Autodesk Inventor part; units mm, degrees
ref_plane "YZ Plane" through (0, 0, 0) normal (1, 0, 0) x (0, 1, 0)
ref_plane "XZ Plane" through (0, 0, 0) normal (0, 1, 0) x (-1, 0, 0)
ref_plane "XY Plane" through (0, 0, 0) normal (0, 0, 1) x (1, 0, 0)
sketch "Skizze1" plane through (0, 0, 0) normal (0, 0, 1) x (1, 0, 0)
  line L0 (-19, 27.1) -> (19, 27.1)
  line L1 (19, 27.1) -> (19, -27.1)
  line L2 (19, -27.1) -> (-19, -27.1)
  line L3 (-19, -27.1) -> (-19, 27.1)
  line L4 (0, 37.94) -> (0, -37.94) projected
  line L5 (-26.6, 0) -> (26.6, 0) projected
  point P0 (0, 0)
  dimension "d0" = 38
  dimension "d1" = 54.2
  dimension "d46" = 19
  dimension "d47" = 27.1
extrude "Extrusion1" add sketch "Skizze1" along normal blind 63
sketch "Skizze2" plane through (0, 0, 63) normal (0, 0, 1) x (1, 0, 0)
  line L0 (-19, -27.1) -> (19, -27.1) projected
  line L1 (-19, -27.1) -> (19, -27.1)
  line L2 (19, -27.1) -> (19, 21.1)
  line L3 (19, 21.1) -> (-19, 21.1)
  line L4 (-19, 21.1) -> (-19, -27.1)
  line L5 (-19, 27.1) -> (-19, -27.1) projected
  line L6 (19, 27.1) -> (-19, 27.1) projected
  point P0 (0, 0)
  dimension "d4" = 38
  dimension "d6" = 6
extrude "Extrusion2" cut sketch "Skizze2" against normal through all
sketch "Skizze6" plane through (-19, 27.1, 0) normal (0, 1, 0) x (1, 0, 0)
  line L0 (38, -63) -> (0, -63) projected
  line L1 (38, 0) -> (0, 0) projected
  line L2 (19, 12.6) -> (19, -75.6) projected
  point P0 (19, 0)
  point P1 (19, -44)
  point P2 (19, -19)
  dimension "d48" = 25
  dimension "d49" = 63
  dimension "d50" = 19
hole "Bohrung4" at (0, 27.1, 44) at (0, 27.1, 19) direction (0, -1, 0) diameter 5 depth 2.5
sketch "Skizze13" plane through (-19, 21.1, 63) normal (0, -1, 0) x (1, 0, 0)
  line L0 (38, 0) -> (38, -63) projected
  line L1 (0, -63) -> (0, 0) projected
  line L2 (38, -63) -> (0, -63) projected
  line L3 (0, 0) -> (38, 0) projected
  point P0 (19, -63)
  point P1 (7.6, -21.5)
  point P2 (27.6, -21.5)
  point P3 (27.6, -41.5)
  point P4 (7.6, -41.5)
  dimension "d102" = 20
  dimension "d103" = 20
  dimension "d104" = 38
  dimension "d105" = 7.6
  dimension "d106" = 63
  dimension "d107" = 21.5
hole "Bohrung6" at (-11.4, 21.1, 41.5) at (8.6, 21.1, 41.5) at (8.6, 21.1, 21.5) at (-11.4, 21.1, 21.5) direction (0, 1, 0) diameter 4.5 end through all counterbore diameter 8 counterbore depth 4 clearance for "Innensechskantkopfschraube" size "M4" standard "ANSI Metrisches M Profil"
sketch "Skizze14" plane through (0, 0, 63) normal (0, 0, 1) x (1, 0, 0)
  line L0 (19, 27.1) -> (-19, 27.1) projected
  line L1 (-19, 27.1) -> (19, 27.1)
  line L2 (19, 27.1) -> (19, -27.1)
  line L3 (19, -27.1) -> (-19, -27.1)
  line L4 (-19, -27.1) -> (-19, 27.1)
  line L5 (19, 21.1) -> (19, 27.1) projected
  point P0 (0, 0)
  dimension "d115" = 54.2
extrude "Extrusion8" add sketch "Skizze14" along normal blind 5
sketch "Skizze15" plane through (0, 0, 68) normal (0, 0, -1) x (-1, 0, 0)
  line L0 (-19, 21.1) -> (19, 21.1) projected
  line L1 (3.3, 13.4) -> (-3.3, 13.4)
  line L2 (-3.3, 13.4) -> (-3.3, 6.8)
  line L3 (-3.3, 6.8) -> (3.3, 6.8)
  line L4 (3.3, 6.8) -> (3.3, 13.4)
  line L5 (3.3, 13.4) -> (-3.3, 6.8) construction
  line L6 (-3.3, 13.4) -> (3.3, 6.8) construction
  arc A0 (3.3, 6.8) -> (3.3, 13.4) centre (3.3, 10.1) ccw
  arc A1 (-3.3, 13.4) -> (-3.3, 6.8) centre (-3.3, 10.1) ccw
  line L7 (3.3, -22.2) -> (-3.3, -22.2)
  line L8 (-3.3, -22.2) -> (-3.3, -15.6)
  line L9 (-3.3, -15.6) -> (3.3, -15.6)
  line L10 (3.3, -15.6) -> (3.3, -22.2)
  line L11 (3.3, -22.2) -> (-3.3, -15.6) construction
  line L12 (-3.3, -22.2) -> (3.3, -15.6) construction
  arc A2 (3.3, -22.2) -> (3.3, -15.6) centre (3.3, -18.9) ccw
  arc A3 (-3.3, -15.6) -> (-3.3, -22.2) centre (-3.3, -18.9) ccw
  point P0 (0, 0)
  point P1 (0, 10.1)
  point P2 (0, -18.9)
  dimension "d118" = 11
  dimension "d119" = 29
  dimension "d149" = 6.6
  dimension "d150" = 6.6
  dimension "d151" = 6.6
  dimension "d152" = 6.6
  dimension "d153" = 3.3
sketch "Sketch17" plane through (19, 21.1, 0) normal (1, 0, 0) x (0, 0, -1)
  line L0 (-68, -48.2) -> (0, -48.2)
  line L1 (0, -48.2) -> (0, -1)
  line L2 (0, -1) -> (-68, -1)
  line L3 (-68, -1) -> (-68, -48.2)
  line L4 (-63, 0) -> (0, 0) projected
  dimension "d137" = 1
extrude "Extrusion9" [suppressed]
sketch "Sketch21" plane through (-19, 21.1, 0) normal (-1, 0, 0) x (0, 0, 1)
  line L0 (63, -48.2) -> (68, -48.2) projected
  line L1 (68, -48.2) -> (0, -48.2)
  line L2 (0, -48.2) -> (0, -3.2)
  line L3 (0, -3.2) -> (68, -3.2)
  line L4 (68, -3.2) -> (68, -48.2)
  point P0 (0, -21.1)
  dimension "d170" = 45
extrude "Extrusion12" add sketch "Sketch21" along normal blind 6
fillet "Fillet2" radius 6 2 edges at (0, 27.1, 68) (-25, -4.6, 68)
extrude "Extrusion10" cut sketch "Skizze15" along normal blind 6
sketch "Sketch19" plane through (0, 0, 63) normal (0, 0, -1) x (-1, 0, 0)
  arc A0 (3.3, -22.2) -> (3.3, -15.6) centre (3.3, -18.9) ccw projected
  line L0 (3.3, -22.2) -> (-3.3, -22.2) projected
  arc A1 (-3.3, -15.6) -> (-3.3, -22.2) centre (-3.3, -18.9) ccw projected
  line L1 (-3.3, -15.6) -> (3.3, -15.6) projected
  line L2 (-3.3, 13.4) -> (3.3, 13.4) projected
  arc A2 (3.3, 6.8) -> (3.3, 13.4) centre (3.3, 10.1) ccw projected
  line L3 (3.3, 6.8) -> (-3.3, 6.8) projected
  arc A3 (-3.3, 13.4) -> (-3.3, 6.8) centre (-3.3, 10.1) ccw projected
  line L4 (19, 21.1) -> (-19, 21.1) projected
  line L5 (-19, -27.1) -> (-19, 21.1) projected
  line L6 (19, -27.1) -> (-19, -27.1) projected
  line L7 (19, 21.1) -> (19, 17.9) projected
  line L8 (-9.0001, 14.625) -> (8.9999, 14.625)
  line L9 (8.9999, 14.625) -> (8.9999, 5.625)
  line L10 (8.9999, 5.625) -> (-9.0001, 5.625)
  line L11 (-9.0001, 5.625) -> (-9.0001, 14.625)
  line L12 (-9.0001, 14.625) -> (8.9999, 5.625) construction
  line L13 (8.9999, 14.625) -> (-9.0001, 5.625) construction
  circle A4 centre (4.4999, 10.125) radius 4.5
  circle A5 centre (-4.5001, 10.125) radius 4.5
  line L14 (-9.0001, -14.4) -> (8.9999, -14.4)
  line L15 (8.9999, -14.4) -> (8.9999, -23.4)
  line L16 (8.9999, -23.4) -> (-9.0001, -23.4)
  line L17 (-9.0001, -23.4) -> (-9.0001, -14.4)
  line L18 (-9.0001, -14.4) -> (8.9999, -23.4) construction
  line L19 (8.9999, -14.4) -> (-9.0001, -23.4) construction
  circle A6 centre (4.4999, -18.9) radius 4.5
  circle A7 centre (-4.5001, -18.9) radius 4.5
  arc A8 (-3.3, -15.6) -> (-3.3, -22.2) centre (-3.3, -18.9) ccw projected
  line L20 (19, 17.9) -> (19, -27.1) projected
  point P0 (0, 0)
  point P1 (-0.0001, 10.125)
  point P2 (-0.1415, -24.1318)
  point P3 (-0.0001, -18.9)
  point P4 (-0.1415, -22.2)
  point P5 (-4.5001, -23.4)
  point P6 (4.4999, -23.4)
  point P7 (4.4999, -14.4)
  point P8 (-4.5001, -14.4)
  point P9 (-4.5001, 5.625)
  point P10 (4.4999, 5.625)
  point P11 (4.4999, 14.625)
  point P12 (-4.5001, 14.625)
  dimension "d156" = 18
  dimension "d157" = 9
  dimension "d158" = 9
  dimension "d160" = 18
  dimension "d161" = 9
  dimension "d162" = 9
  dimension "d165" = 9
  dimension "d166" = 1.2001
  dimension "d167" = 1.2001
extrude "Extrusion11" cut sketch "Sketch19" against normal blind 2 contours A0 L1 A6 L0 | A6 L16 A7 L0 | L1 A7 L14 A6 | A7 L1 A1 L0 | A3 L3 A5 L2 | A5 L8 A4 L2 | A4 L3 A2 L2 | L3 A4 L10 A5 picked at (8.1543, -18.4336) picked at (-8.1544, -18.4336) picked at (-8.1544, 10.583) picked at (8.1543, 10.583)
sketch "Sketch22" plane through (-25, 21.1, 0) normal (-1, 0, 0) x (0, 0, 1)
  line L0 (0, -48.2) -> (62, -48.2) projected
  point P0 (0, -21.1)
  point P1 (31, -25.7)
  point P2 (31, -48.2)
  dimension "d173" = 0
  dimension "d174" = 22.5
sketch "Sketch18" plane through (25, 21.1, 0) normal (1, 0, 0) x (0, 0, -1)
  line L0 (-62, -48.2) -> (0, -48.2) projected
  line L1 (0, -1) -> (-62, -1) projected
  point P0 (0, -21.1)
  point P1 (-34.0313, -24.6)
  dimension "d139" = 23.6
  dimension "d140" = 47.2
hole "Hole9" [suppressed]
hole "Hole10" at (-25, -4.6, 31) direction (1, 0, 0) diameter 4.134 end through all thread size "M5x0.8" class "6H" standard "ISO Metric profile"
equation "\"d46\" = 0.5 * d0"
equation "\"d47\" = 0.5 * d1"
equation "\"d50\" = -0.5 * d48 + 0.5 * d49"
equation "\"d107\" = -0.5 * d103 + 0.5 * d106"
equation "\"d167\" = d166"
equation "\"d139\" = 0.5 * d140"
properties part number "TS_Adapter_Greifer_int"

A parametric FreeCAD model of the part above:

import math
import FreeCAD as App
import Part
import Sketcher
Q = App.Units.Quantity


def edges_at(feature, points):
    """Names of the edges that pass closest to the given points."""
    edges = feature.Shape.Edges
    near = lambda p: min(range(len(edges)), key=lambda i: edges[i].distToShape(Part.Vertex(*p))[0])
    return sorted({f"Edge{near(p) + 1}" for p in points})

doc = App.newDocument("Part")
body = doc.addObject("PartDesign::Body", "Body")

sketch1 = body.newObject("Sketcher::SketchObject", "Sketch")
sketch1.AttachmentSupport = (doc.getObject("XY_Plane"), [""])
sketch1.MapMode = "FlatFace"
sketch1.addGeometry(Part.LineSegment(App.Vector(-19, 27, 0), App.Vector(-19, -27, 0)), False)
sketch1.addGeometry(Part.LineSegment(App.Vector(-19, -27, 0), App.Vector(19, -27, 0)), False)
sketch1.addGeometry(Part.LineSegment(App.Vector(19, -27, 0), App.Vector(19, 27, 0)), False)
sketch1.addGeometry(Part.LineSegment(App.Vector(19, 27, 0), App.Vector(-19, 27, 0)), False)
sketch1.addConstraint(Sketcher.Constraint("Coincident", 0, 2, 1, 1))
sketch1.addConstraint(Sketcher.Constraint("Coincident", 1, 2, 2, 1))
sketch1.addConstraint(Sketcher.Constraint("Coincident", 2, 2, 3, 1))
sketch1.addConstraint(Sketcher.Constraint("Coincident", 3, 2, 0, 1))
sketch1.addConstraint(Sketcher.Constraint("Vertical", 0))
sketch1.addConstraint(Sketcher.Constraint("Horizontal", 1))
sketch1.addConstraint(Sketcher.Constraint("Vertical", 2))
sketch1.addConstraint(Sketcher.Constraint("Horizontal", 3))
sketch1.addConstraint(Sketcher.Constraint("Symmetric", 0, 2, 2, 2, -1, 1))
sketch1.addConstraint(Sketcher.Constraint("DistanceX", 1, 1, 1, 2, Q("38 mm")))
sketch1.addConstraint(Sketcher.Constraint("DistanceY", 0, 2, 0, 1, Q("54.2 mm")))
pad1 = body.newObject("PartDesign::Pad", "Pad")
pad1.Profile = sketch1
pad1.Length = 63

sketch2 = body.newObject("Sketcher::SketchObject", "Sketch001")
sketch2.AttachmentSupport = (doc.getObject("XY_Plane"), [""])
sketch2.MapMode = "FlatFace"
sketch2.AttachmentOffset = App.Placement(App.Vector(0, 0, 63), App.Rotation())
sketch2.addGeometry(Part.LineSegment(App.Vector(-19, 21, 0), App.Vector(-19, -27, 0)), False)
sketch2.addGeometry(Part.LineSegment(App.Vector(-19, -27, 0), App.Vector(19, -27, 0)), False)
sketch2.addGeometry(Part.LineSegment(App.Vector(19, -27, 0), App.Vector(19, 21, 0)), False)
sketch2.addGeometry(Part.LineSegment(App.Vector(19, 21, 0), App.Vector(-19, 21, 0)), False)
sketch2.addConstraint(Sketcher.Constraint("Coincident", 0, 2, 1, 1))
sketch2.addConstraint(Sketcher.Constraint("Coincident", 1, 2, 2, 1))
sketch2.addConstraint(Sketcher.Constraint("Coincident", 2, 2, 3, 1))
sketch2.addConstraint(Sketcher.Constraint("Coincident", 3, 2, 0, 1))
sketch2.addConstraint(Sketcher.Constraint("Vertical", 0))
sketch2.addConstraint(Sketcher.Constraint("Horizontal", 1))
sketch2.addConstraint(Sketcher.Constraint("Vertical", 2))
sketch2.addConstraint(Sketcher.Constraint("Horizontal", 3))
sketch2.addConstraint(Sketcher.Constraint("DistanceX", 1, 1, 1, 2, Q("38 mm")))
sketch2.addConstraint(Sketcher.Constraint("DistanceY", 0, 2, 0, 1, Q("48.2 mm")))
sketch2.addConstraint(Sketcher.Constraint("DistanceX", 0, 2, -1, 1, Q("19 mm")))
sketch2.addConstraint(Sketcher.Constraint("DistanceY", 0, 2, -1, 1, Q("27.1 mm")))
pocket1 = body.newObject("PartDesign::Pocket", "Pocket")
pocket1.Profile = sketch2
pocket1.Type = "ThroughAll"

sketch3 = body.newObject("Sketcher::SketchObject", "Sketch002")
sketch3.AttachmentSupport = (doc.getObject("XZ_Plane"), [""])
sketch3.MapMode = "FlatFace"
sketch3.AttachmentOffset = App.Placement(App.Vector(0, 0, -27.1), App.Rotation())
sketch3.addGeometry(Part.Circle(App.Vector(0, 44, 0), App.Vector(0, 0, 1), 2.5), False)
sketch3.addGeometry(Part.Circle(App.Vector(0, 19, 0), App.Vector(0, 0, 1), 2.5), False)
sketch3.addConstraint(Sketcher.Constraint("Equal", 0, 1))
sketch3.addConstraint(Sketcher.Constraint("PointOnObject", 0, 3, -2))
sketch3.addConstraint(Sketcher.Constraint("PointOnObject", 1, 3, -2))
sketch3.addConstraint(Sketcher.Constraint("Diameter", 0, Q("5 mm")))
sketch3.addConstraint(Sketcher.Constraint("DistanceY", -1, 1, 0, 3, Q("44 mm")))
sketch3.addConstraint(Sketcher.Constraint("DistanceY", -1, 1, 1, 3, Q("19 mm")))
doc.recompute()
hole = body.newObject("PartDesign::Hole", "Hole")
hole.Profile = sketch3
hole.ThreadType = "None"
hole.Diameter = 5
hole.DepthType = "Dimension"
hole.Depth = 2.5
hole.DrillPoint = "Flat"
hole.Reversed = True

sketch4 = body.newObject("Sketcher::SketchObject", "Sketch003")
sketch4.AttachmentSupport = (doc.getObject("XZ_Plane"), [""])
sketch4.MapMode = "FlatFace"
sketch4.AttachmentOffset = App.Placement(App.Vector(0, 0, -21.1), App.Rotation())
sketch4.addGeometry(Part.Circle(App.Vector(-11.4, 41.5, 0), App.Vector(0, 0, 1), 2.2), False)
sketch4.addGeometry(Part.Circle(App.Vector(8.6, 41.5, 0), App.Vector(0, 0, 1), 2.2), False)
sketch4.addGeometry(Part.Circle(App.Vector(8.6, 21.5, 0), App.Vector(0, 0, 1), 2.2), False)
sketch4.addGeometry(Part.Circle(App.Vector(-11.4, 21.5, 0), App.Vector(0, 0, 1), 2.2), False)
sketch4.addConstraint(Sketcher.Constraint("Equal", 0, 1))
sketch4.addConstraint(Sketcher.Constraint("Equal", 1, 2))
sketch4.addConstraint(Sketcher.Constraint("Equal", 2, 3))
sketch4.addConstraint(Sketcher.Constraint("Horizontal", 0, 3, 1, 3))
sketch4.addConstraint(Sketcher.Constraint("Horizontal", 2, 3, 3, 3))
sketch4.addConstraint(Sketcher.Constraint("Vertical", 1, 3, 2, 3))
sketch4.addConstraint(Sketcher.Constraint("Vertical", 0, 3, 3, 3))
sketch4.addConstraint(Sketcher.Constraint("Diameter", 0, Q("4.5 mm")))
sketch4.addConstraint(Sketcher.Constraint("DistanceX", 0, 3, 1, 3, Q("20 mm")))
sketch4.addConstraint(Sketcher.Constraint("DistanceY", 2, 3, 1, 3, Q("20 mm")))
sketch4.addConstraint(Sketcher.Constraint("DistanceX", 0, 3, -1, 1, Q("11.4 mm")))
sketch4.addConstraint(Sketcher.Constraint("DistanceY", -1, 1, 0, 3, Q("41.5 mm")))
doc.recompute()
hole2 = body.newObject("PartDesign::Hole", "Hole001")
hole2.Profile = sketch4
hole2.ThreadType = "None"
hole2.Diameter = 4.5
hole2.DepthType = "ThroughAll"
hole2.HoleCutType = "Counterbore"
hole2.HoleCutDiameter = 8
hole2.HoleCutDepth = 4

sketch5 = body.newObject("Sketcher::SketchObject", "Sketch004")
sketch5.AttachmentSupport = (doc.getObject("XY_Plane"), [""])
sketch5.MapMode = "FlatFace"
sketch5.AttachmentOffset = App.Placement(App.Vector(0, 0, 63), App.Rotation())
sketch5.addGeometry(Part.LineSegment(App.Vector(19, -27, 0), App.Vector(19, 27, 0)), False)
sketch5.addGeometry(Part.LineSegment(App.Vector(19, 27, 0), App.Vector(-19, 27, 0)), False)
sketch5.addGeometry(Part.LineSegment(App.Vector(-19, 27, 0), App.Vector(-19, -27, 0)), False)
sketch5.addGeometry(Part.LineSegment(App.Vector(-19, -27, 0), App.Vector(19, -27, 0)), False)
sketch5.addConstraint(Sketcher.Constraint("Coincident", 0, 2, 1, 1))
sketch5.addConstraint(Sketcher.Constraint("Coincident", 1, 2, 2, 1))
sketch5.addConstraint(Sketcher.Constraint("Coincident", 2, 2, 3, 1))
sketch5.addConstraint(Sketcher.Constraint("Coincident", 3, 2, 0, 1))
sketch5.addConstraint(Sketcher.Constraint("Vertical", 0))
sketch5.addConstraint(Sketcher.Constraint("Horizontal", 1))
sketch5.addConstraint(Sketcher.Constraint("Vertical", 2))
sketch5.addConstraint(Sketcher.Constraint("Horizontal", 3))
sketch5.addConstraint(Sketcher.Constraint("Symmetric", 0, 2, 2, 2, -1, 1))
sketch5.addConstraint(Sketcher.Constraint("DistanceY", 0, 1, 0, 2, Q("54.2 mm")))
sketch5.addConstraint(Sketcher.Constraint("DistanceX", 1, 2, 1, 1, Q("38 mm")))
pad2 = body.newObject("PartDesign::Pad", "Pad001")
pad2.Profile = sketch5
pad2.Length = 5

sketch6 = body.newObject("Sketcher::SketchObject", "Sketch005")
sketch6.AttachmentSupport = (doc.getObject("YZ_Plane"), [""])
sketch6.MapMode = "FlatFace"
sketch6.AttachmentOffset = App.Placement(App.Vector(0, 0, -19), App.Rotation())
sketch6.addGeometry(Part.LineSegment(App.Vector(-27, 0, 0), App.Vector(-27, 68, 0)), False)
sketch6.addGeometry(Part.LineSegment(App.Vector(-27, 68, 0), App.Vector(18, 68, 0)), False)
sketch6.addGeometry(Part.LineSegment(App.Vector(18, 68, 0), App.Vector(18, 0, 0)), False)
sketch6.addGeometry(Part.LineSegment(App.Vector(18, 0, 0), App.Vector(-27, 0, 0)), False)
sketch6.addConstraint(Sketcher.Constraint("Coincident", 0, 2, 1, 1))
sketch6.addConstraint(Sketcher.Constraint("Coincident", 1, 2, 2, 1))
sketch6.addConstraint(Sketcher.Constraint("Coincident", 2, 2, 3, 1))
sketch6.addConstraint(Sketcher.Constraint("Coincident", 3, 2, 0, 1))
sketch6.addConstraint(Sketcher.Constraint("Vertical", 0))
sketch6.addConstraint(Sketcher.Constraint("Horizontal", 1))
sketch6.addConstraint(Sketcher.Constraint("Vertical", 2))
sketch6.addConstraint(Sketcher.Constraint("Horizontal", 3))
sketch6.addConstraint(Sketcher.Constraint("PointOnObject", 2, 2, -1))
sketch6.addConstraint(Sketcher.Constraint("DistanceX", 1, 1, 1, 2, Q("45 mm")))
sketch6.addConstraint(Sketcher.Constraint("DistanceY", 0, 1, 0, 2, Q("68 mm")))
sketch6.addConstraint(Sketcher.Constraint("DistanceX", 0, 2, -1, 1, Q("27.1 mm")))
pad3 = body.newObject("PartDesign::Pad", "Pad002")
pad3.Profile = sketch6
pad3.Length = 6
pad3.Reversed = True
doc.recompute()

fillet = body.newObject("PartDesign::Fillet", "Fillet")
fillet.Base = (pad3, edges_at(pad3, [(0, 27.1, 68), (-25, -4.6, 68)]))
fillet.Radius = 6

sketch7 = body.newObject("Sketcher::SketchObject", "Sketch006")
sketch7.AttachmentSupport = (doc.getObject("XY_Plane"), [""])
sketch7.MapMode = "FlatFace"
sketch7.AttachmentOffset = App.Placement(App.Vector(0, 0, 68), App.Rotation())
sketch7.addGeometry(Part.LineSegment(App.Vector(3.3, 6.8, 0), App.Vector(-3.3, 6.8, 0)), False)
sketch7.addGeometry(Part.ArcOfCircle(Part.Circle(App.Vector(-3.3, 10.1, 0), App.Vector(0, 0, 1), 3.3), math.radians(90), math.radians(270)), False)
sketch7.addGeometry(Part.LineSegment(App.Vector(-3.3, 13.4, 0), App.Vector(3.3, 13.4, 0)), False)
sketch7.addGeometry(Part.ArcOfCircle(Part.Circle(App.Vector(3.3, 10.1, 0), App.Vector(0, 0, 1), 3.3), math.radians(-90), math.radians(90)), False)
sketch7.addGeometry(Part.LineSegment(App.Vector(3.3, -22.2, 0), App.Vector(-3.3, -22.2, 0)), False)
sketch7.addGeometry(Part.ArcOfCircle(Part.Circle(App.Vector(-3.3, -18.9, 0), App.Vector(0, 0, 1), 3.3), math.radians(90), math.radians(270)), False)
sketch7.addGeometry(Part.LineSegment(App.Vector(-3.3, -15.6, 0), App.Vector(3.3, -15.6, 0)), False)
sketch7.addGeometry(Part.ArcOfCircle(Part.Circle(App.Vector(3.3, -18.9, 0), App.Vector(0, 0, 1), 3.3), math.radians(-90), math.radians(90)), False)
sketch7.addConstraint(Sketcher.Constraint("Tangent", 0, 2, 1, 2))
sketch7.addConstraint(Sketcher.Constraint("Tangent", 1, 1, 2, 1))
sketch7.addConstraint(Sketcher.Constraint("Tangent", 2, 2, 3, 2))
sketch7.addConstraint(Sketcher.Constraint("Tangent", 3, 1, 0, 1))
sketch7.addConstraint(Sketcher.Constraint("Tangent", 4, 2, 5, 2))
sketch7.addConstraint(Sketcher.Constraint("Tangent", 5, 1, 6, 1))
sketch7.addConstraint(Sketcher.Constraint("Tangent", 6, 2, 7, 2))
sketch7.addConstraint(Sketcher.Constraint("Tangent", 7, 1, 4, 1))
sketch7.addConstraint(Sketcher.Constraint("Horizontal", 0))
sketch7.addConstraint(Sketcher.Constraint("Horizontal", 2))
sketch7.addConstraint(Sketcher.Constraint("Horizontal", 4))
sketch7.addConstraint(Sketcher.Constraint("Horizontal", 6))
sketch7.addConstraint(Sketcher.Constraint("Equal", 3, 5))
sketch7.addConstraint(Sketcher.Constraint("Vertical", 1, 3, 5, 3))
sketch7.addConstraint(Sketcher.Constraint("Vertical", 3, 3, 7, 3))
sketch7.addConstraint(Sketcher.Constraint("Radius", 1, Q("3.3 mm")))
sketch7.addConstraint(Sketcher.Constraint("DistanceX", 0, 2, 0, 1, Q("6.6 mm")))
sketch7.addConstraint(Sketcher.Constraint("DistanceY", 5, 3, 1, 3, Q("29 mm")))
sketch7.addConstraint(Sketcher.Constraint("DistanceX", 1, 3, -1, 1, Q("3.3 mm")))
sketch7.addConstraint(Sketcher.Constraint("DistanceY", -1, 1, 1, 3, Q("10.1 mm")))
pocket2 = body.newObject("PartDesign::Pocket", "Pocket001")
pocket2.Profile = sketch7
pocket2.Length = 6

sketch8 = body.newObject("Sketcher::SketchObject", "Sketch007")
sketch8.AttachmentSupport = (doc.getObject("XY_Plane"), [""])
sketch8.MapMode = "FlatFace"
sketch8.AttachmentOffset = App.Placement(App.Vector(0, 0, 63), App.Rotation())
sketch8.addGeometry(Part.LineSegment(App.Vector(-4.5, -14.4, 0), App.Vector(4.5, -14.4, 0)), False)
sketch8.addGeometry(Part.ArcOfCircle(Part.Circle(App.Vector(4.5, -18.9, 0), App.Vector(0, 0, 1), 4.5), math.radians(-90), math.radians(90)), False)
sketch8.addGeometry(Part.LineSegment(App.Vector(4.5, -23.4, 0), App.Vector(-4.5, -23.4, 0)), False)
sketch8.addGeometry(Part.ArcOfCircle(Part.Circle(App.Vector(-4.5, -18.9, 0), App.Vector(0, 0, 1), 4.5), math.radians(90), math.radians(270)), False)
sketch8.addGeometry(Part.ArcOfCircle(Part.Circle(App.Vector(-3.3, -18.9, 0), App.Vector(0, 0, 1), 3.3), math.radians(90), math.radians(270)), False)
sketch8.addGeometry(Part.LineSegment(App.Vector(-3.3, -22.2, 0), App.Vector(3.3, -22.2, 0)), False)
sketch8.addGeometry(Part.ArcOfCircle(Part.Circle(App.Vector(3.3, -18.9, 0), App.Vector(0, 0, 1), 3.3), math.radians(-90), math.radians(90)), False)
sketch8.addGeometry(Part.LineSegment(App.Vector(3.3, -15.6, 0), App.Vector(-3.3, -15.6, 0)), False)
sketch8.addGeometry(Part.LineSegment(App.Vector(4.5, 5.6, 0), App.Vector(-4.5, 5.6, 0)), False)
sketch8.addGeometry(Part.ArcOfCircle(Part.Circle(App.Vector(-4.5, 10.1, 0), App.Vector(0, 0, 1), 4.5), math.radians(90), math.radians(270)), False)
sketch8.addGeometry(Part.LineSegment(App.Vector(-4.5, 14.6, 0), App.Vector(4.5, 14.6, 0)), False)
sketch8.addGeometry(Part.ArcOfCircle(Part.Circle(App.Vector(4.5, 10.1, 0), App.Vector(0, 0, 1), 4.5), math.radians(-90), math.radians(90)), False)
sketch8.addGeometry(Part.ArcOfCircle(Part.Circle(App.Vector(3.3, 10.1, 0), App.Vector(0, 0, 1), 3.3), math.radians(-90), math.radians(90)), False)
sketch8.addGeometry(Part.LineSegment(App.Vector(3.3, 13.4, 0), App.Vector(-3.3, 13.4, 0)), False)
sketch8.addGeometry(Part.ArcOfCircle(Part.Circle(App.Vector(-3.3, 10.1, 0), App.Vector(0, 0, 1), 3.3), math.radians(90), math.radians(270)), False)
sketch8.addGeometry(Part.LineSegment(App.Vector(-3.3, 6.8, 0), App.Vector(3.3, 6.8, 0)), False)
sketch8.addConstraint(Sketcher.Constraint("Tangent", 0, 2, 1, 2))
sketch8.addConstraint(Sketcher.Constraint("Tangent", 1, 1, 2, 1))
sketch8.addConstraint(Sketcher.Constraint("Tangent", 2, 2, 3, 2))
sketch8.addConstraint(Sketcher.Constraint("Tangent", 3, 1, 0, 1))
sketch8.addConstraint(Sketcher.Constraint("Tangent", 4, 2, 5, 1))
sketch8.addConstraint(Sketcher.Constraint("Tangent", 5, 2, 6, 1))
sketch8.addConstraint(Sketcher.Constraint("Tangent", 6, 2, 7, 1))
sketch8.addConstraint(Sketcher.Constraint("Tangent", 7, 2, 4, 1))
sketch8.addConstraint(Sketcher.Constraint("Tangent", 8, 2, 9, 2))
sketch8.addConstraint(Sketcher.Constraint("Tangent", 9, 1, 10, 1))
sketch8.addConstraint(Sketcher.Constraint("Tangent", 10, 2, 11, 2))
sketch8.addConstraint(Sketcher.Constraint("Tangent", 11, 1, 8, 1))
sketch8.addConstraint(Sketcher.Constraint("Tangent", 12, 2, 13, 1))
sketch8.addConstraint(Sketcher.Constraint("Tangent", 13, 2, 14, 1))
sketch8.addConstraint(Sketcher.Constraint("Tangent", 14, 2, 15, 1))
sketch8.addConstraint(Sketcher.Constraint("Tangent", 15, 2, 12, 1))
sketch8.addConstraint(Sketcher.Constraint("Horizontal", 0))
sketch8.addConstraint(Sketcher.Constraint("Horizontal", 2))
sketch8.addConstraint(Sketcher.Constraint("Horizontal", 5))
sketch8.addConstraint(Sketcher.Constraint("Horizontal", 7))
sketch8.addConstraint(Sketcher.Constraint("Horizontal", 8))
sketch8.addConstraint(Sketcher.Constraint("Horizontal", 10))
sketch8.addConstraint(Sketcher.Constraint("Horizontal", 13))
sketch8.addConstraint(Sketcher.Constraint("Horizontal", 15))
sketch8.addConstraint(Sketcher.Constraint("Equal", 3, 9))
sketch8.addConstraint(Sketcher.Constraint("Equal", 6, 12))
sketch8.addConstraint(Sketcher.Constraint("Horizontal", 3, 3, 4, 3))
sketch8.addConstraint(Sketcher.Constraint("Vertical", 3, 3, 9, 3))
sketch8.addConstraint(Sketcher.Constraint("Vertical", 1, 3, 11, 3))
sketch8.addConstraint(Sketcher.Constraint("Vertical", 6, 3, 12, 3))
sketch8.addConstraint(Sketcher.Constraint("Vertical", 4, 3, 14, 3))
sketch8.addConstraint(Sketcher.Constraint("Radius", 1, Q("4.5 mm")))
sketch8.addConstraint(Sketcher.Constraint("DistanceX", 0, 1, 0, 2, Q("9 mm")))
sketch8.addConstraint(Sketcher.Constraint("Radius", 4, Q("3.3 mm")))
sketch8.addConstraint(Sketcher.Constraint("DistanceX", 3, 3, 4, 3, Q("1.2 mm")))
sketch8.addConstraint(Sketcher.Constraint("DistanceX", 6, 3, 1, 3, Q("1.2 mm")))
sketch8.addConstraint(Sketcher.Constraint("DistanceY", 6, 3, 12, 3, Q("29 mm")))
sketch8.addConstraint(Sketcher.Constraint("DistanceX", -1, 1, 1, 3, Q("4.5 mm")))
sketch8.addConstraint(Sketcher.Constraint("DistanceY", 1, 3, -1, 1, Q("18.9 mm")))
sketch8.addConstraint(Sketcher.Constraint("DistanceY", -1, 1, 9, 3, Q("10.125 mm")))
pocket3 = body.newObject("PartDesign::Pocket", "Pocket002")
pocket3.Profile = sketch8
pocket3.Length = 2
pocket3.Reversed = True

sketch9 = body.newObject("Sketcher::SketchObject", "Sketch008")
sketch9.AttachmentSupport = (doc.getObject("YZ_Plane"), [""])
sketch9.MapMode = "FlatFace"
sketch9.AttachmentOffset = App.Placement(App.Vector(0, 0, -25), App.Rotation())
sketch9.addGeometry(Part.Circle(App.Vector(-4.6, 31, 0), App.Vector(0, 0, 1), 2.1), False)
sketch9.addConstraint(Sketcher.Constraint("Diameter", 0, Q("4.134 mm")))
sketch9.addConstraint(Sketcher.Constraint("DistanceY", -1, 1, 0, 3, Q("31 mm")))
sketch9.addConstraint(Sketcher.Constraint("DistanceX", 0, 3, -1, 1, Q("4.6 mm")))
doc.recompute()
hole3 = body.newObject("PartDesign::Hole", "Hole002")
hole3.Profile = sketch9
hole3.ThreadType = "None"
hole3.Diameter = 4.134
hole3.DepthType = "ThroughAll"
hole3.Reversed = True

doc.recompute()
